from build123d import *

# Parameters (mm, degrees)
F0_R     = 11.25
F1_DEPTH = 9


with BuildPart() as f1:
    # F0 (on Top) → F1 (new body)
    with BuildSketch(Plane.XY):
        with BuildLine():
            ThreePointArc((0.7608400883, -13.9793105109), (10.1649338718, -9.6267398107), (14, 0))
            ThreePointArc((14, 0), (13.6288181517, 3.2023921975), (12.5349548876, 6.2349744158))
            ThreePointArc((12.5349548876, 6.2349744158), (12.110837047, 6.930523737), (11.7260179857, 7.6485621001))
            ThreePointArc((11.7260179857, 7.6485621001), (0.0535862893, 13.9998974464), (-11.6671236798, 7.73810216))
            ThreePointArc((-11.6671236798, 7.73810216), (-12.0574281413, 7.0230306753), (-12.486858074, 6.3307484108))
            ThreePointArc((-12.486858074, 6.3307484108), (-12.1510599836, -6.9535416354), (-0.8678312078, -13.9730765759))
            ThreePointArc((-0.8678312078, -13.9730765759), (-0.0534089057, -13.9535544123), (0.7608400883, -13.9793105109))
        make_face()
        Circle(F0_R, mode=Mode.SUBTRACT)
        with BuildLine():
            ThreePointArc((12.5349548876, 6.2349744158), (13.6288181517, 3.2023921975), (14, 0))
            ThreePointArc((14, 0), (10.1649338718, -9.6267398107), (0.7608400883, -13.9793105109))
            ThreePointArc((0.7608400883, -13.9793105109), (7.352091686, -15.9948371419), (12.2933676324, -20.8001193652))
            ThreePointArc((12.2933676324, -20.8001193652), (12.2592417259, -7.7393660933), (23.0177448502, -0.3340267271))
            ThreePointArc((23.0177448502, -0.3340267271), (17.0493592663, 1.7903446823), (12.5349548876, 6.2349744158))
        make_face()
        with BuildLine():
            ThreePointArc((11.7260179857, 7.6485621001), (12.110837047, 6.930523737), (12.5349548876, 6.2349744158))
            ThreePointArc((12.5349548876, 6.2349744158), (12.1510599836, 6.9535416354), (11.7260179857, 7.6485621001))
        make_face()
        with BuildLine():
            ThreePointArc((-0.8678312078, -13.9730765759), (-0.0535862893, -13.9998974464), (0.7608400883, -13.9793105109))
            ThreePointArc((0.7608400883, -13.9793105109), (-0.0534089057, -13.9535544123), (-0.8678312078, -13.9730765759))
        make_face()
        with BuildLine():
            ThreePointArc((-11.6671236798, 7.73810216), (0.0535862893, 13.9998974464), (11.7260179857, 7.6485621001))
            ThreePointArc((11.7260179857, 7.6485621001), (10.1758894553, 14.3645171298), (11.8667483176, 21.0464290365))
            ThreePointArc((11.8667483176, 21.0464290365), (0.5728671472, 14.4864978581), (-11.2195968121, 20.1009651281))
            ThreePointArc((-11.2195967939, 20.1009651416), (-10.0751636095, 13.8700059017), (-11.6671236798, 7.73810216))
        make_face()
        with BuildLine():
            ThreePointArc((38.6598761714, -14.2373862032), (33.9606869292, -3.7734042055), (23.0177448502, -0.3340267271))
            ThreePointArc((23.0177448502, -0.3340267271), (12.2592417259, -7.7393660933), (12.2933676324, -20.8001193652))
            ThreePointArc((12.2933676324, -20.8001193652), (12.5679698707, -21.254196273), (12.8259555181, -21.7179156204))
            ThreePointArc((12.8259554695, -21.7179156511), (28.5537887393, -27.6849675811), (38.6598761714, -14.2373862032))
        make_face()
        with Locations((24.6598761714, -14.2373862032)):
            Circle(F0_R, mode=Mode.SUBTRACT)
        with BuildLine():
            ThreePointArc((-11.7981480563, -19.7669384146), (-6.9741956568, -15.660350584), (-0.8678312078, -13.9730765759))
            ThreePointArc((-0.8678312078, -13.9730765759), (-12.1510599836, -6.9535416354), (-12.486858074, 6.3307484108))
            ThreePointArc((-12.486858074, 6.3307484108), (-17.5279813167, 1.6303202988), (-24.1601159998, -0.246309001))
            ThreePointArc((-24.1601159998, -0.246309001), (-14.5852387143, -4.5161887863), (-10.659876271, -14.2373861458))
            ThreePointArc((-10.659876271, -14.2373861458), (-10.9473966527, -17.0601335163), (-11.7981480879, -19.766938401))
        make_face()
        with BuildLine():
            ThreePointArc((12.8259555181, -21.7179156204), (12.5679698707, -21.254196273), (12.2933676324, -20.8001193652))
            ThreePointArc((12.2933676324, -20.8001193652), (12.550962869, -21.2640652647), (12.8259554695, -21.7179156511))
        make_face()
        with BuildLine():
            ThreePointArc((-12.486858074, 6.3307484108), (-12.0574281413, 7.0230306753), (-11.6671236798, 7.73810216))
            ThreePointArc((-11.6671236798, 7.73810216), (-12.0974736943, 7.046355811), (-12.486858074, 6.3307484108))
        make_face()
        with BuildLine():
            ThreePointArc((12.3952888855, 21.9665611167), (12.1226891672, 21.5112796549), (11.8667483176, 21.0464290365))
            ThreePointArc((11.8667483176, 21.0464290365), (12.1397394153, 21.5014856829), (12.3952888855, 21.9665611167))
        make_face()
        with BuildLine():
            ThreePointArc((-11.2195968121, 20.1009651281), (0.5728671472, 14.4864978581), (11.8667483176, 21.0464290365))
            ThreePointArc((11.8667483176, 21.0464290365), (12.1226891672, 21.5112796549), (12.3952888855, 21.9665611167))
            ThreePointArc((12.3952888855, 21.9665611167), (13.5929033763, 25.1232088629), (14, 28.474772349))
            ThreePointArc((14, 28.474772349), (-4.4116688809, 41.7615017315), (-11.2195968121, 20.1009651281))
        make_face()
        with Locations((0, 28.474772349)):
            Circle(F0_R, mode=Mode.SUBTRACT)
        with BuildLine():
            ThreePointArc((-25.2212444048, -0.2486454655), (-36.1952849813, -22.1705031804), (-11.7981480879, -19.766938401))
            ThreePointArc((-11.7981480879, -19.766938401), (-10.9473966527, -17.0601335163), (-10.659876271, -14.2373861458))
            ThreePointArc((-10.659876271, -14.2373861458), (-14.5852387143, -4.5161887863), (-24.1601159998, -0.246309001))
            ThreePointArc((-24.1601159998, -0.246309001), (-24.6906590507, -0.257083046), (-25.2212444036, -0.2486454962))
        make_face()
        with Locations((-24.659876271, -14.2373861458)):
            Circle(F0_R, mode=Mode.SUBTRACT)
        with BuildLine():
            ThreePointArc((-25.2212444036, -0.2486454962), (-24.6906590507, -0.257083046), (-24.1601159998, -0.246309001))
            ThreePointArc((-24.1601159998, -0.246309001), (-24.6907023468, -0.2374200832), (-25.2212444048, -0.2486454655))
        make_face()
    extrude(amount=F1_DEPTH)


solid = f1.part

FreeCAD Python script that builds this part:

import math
import FreeCAD as App
import Part
import Sketcher

V = App.Vector
Q = App.Units.Quantity

doc = App.newDocument("Part")
body = doc.addObject("PartDesign::Body", "Body")

# Sketch on XY plane
sketch1 = body.newObject("Sketcher::SketchObject", "Sketch")
sketch1.AttachmentSupport = (doc.getObject("XY_Plane"), [""])
sketch1.MapMode = "FlatFace"
sketch1.addGeometry([
    Part.ArcOfCircle(Part.Circle(V(-0.109511, -28.61081, 0), V(0, 0, 1), 14.657363), math.radians(32.2006), math.radians(86.595785)),  # 0
    Part.ArcOfCircle(Part.Circle(V(24.659876, -14.237386, 0), V(0, 0, 1), 14), math.radians(-152.045733), math.radians(-147.701953)),  # 1
    Part.ArcOfCircle(Part.Circle(V(24.659876, -14.237386, 0), V(0, 0, 1), 14), math.radians(-147.701953), math.radians(0)),  # 2
    Part.ArcOfCircle(Part.Circle(V(24.659876, -14.237386, 0), V(0, 0, 1), 14), math.radians(0), math.radians(96.73602)),  # 3
    Part.ArcOfCircle(Part.Circle(V(24.832444, 14.210566, 0), V(0, 0, 1), 14.657363), math.radians(-147.034396), math.radians(-97.111927)),  # 4
    Part.ArcOfCircle(Part.Circle(V(0, 0, 0), V(0, 0, 1), 14), math.radians(26.446074), math.radians(33.115315)),  # 5
    Part.ArcOfCircle(Part.Circle(V(24.832444, 14.210566, 0), V(0, 0, 1), 14.657363), math.radians(152.200597), math.radians(206.595785)),  # 6
    Part.ArcOfCircle(Part.Circle(V(0, 28.474772, 0), V(0, 0, 1), 14), math.radians(-32.04573), math.radians(-27.701953)),  # 7
    Part.ArcOfCircle(Part.Circle(V(0, 28.474772, 0), V(0, 0, 1), 14), math.radians(-27.701953), math.radians(0)),  # 8
    Part.ArcOfCircle(Part.Circle(V(0, 28.474772, 0), V(0, 0, 1), 14), math.radians(0), math.radians(216.736021)),  # 9
    Part.ArcOfCircle(Part.Circle(V(-24.722933, 14.400245, 0), V(0, 0, 1), 14.657363), math.radians(-27.034396), math.radians(22.888073)),  # 10
    Part.ArcOfCircle(Part.Circle(V(0, 0, 0), V(0, 0, 1), 14), math.radians(146.446074), math.radians(153.115315)),  # 11
    Part.ArcOfCircle(Part.Circle(V(-24.722933, 14.400245, 0), V(0, 0, 1), 14.657363), math.radians(-87.799402), math.radians(-33.404215)),  # 12
    Part.ArcOfCircle(Part.Circle(V(-24.659876, -14.237386, 0), V(0, 0, 1), 14), math.radians(87.954269), math.radians(92.298046)),  # 13
    Part.ArcOfCircle(Part.Circle(V(-24.659876, -14.237386, 0), V(0, 0, 1), 14), math.radians(92.298046), math.radians(336.736021)),  # 14
    Part.ArcOfCircle(Part.Circle(V(-0.109511, -28.61081, 0), V(0, 0, 1), 14.657363), math.radians(92.965604), math.radians(142.888073)),  # 15
    Part.ArcOfCircle(Part.Circle(V(0, 0, 0), V(0, 0, 1), 14), math.radians(-93.553926), math.radians(-86.884685)),  # 16
    Part.Circle(V(-24.659876, -14.237386, 0), V(0, 0, 1), 11.25),  # 17
    Part.Circle(V(24.659876, -14.237386, 0), V(0, 0, 1), 11.25),  # 18
    Part.Circle(V(0, 0, 0), V(0, 0, 1), 11.25),  # 19
    Part.Circle(V(0, 28.474772, 0), V(0, 0, 1), 11.25),  # 20
], False)
sketch1.addConstraint([
    Sketcher.Constraint("Coincident", 0, 1, 1, 1),
    Sketcher.Constraint("Tangent", 1, 2, 2, 1),
    Sketcher.Constraint("Tangent", 2, 2, 3, 1),
    Sketcher.Constraint("Coincident", 3, 2, 4, 2),
    Sketcher.Constraint("Coincident", 4, 1, 5, 1),
    Sketcher.Constraint("Coincident", 5, 2, 6, 2),
    Sketcher.Constraint("Coincident", 6, 1, 7, 1),
    Sketcher.Constraint("Tangent", 7, 2, 8, 1),
    Sketcher.Constraint("Tangent", 8, 2, 9, 1),
    Sketcher.Constraint("Coincident", 9, 2, 10, 2),
    Sketcher.Constraint("Coincident", 10, 1, 11, 1),
    Sketcher.Constraint("Coincident", 11, 2, 12, 2),
    Sketcher.Constraint("Coincident", 12, 1, 13, 1),
    Sketcher.Constraint("Tangent", 13, 2, 14, 1),
    Sketcher.Constraint("Coincident", 14, 2, 15, 2),
    Sketcher.Constraint("Coincident", 15, 1, 16, 1),
    Sketcher.Constraint("Coincident", 16, 2, 0, 2),
    Sketcher.Constraint("Coincident", 5, 3, -1, 1),
    Sketcher.Constraint("Coincident", 11, 3, -1, 1),
    Sketcher.Constraint("Coincident", 16, 3, -1, 1),
    Sketcher.Constraint("Coincident", 19, 3, -1, 1),
    Sketcher.Constraint("Coincident", 3, 3, 1, 3),
    Sketcher.Constraint("Coincident", 6, 3, 4, 3),
    Sketcher.Constraint("Coincident", 9, 3, 7, 3),
    Sketcher.Constraint("Coincident", 12, 3, 10, 3),
    Sketcher.Constraint("Coincident", 15, 3, 0, 3),
    Sketcher.Constraint("Coincident", 17, 3, 13, 3),
    Sketcher.Constraint("Coincident", 18, 3, 1, 3),
    Sketcher.Constraint("Coincident", 20, 3, 7, 3),
    Sketcher.Constraint("Equal", 0, 4),
    Sketcher.Constraint("Equal", 3, 5),
    Sketcher.Constraint("Equal", 4, 6),
    Sketcher.Constraint("Equal", 5, 7),
    Sketcher.Constraint("Equal", 6, 10),
    Sketcher.Constraint("Equal", 9, 11),
    Sketcher.Constraint("Equal", 10, 12),
    Sketcher.Constraint("Equal", 11, 13),
    Sketcher.Constraint("Equal", 13, 14),
    Sketcher.Constraint("Equal", 12, 15),
    Sketcher.Constraint("Equal", 14, 16),
    Sketcher.Constraint("Equal", 17, 18),
    Sketcher.Constraint("Equal", 18, 19),
    Sketcher.Constraint("Equal", 19, 20),
    Sketcher.Constraint("Symmetric", 1, 3, 13, 3, -2),
    Sketcher.Constraint("PointOnObject", 7, 3, -2),
    Sketcher.Constraint("Horizontal", 18, 3, 2, 2),
    Sketcher.Constraint("Horizontal", 20, 3, 8, 2),
    Sketcher.Constraint("Radius", 1, Q("14 mm")),
    Sketcher.Constraint("Diameter", 17, Q("22.5 mm")),
    Sketcher.Constraint("Radius", 0, Q("14.657363 mm")),
    Sketcher.Constraint("DistanceY", 3, 2, 4, 1, Q("6.569001 mm")),
    Sketcher.Constraint("DistanceX", 3, 2, 6, 3, Q("1.814699 mm")),
    Sketcher.Constraint("DistanceX", 0, 3, -1, 1, Q("0.109511 mm")),
    Sketcher.Constraint("DistanceY", 0, 3, -1, 1, Q("28.61081 mm")),
    Sketcher.Constraint("DistanceY", 0, 1, -1, 1, Q("20.800119 mm")),
    Sketcher.Constraint("DistanceX", -1, 1, 6, 1, Q("11.866748 mm")),
    Sketcher.Constraint("DistanceY", -1, 1, 6, 1, Q("21.046429 mm")),
    Sketcher.Constraint("DistanceX", -1, 1, 7, 2, Q("12.395289 mm")),
    Sketcher.Constraint("DistanceX", 11, 2, -1, 1, Q("12.486858 mm")),
    Sketcher.Constraint("DistanceY", 12, 1, -1, 1, Q("0.246309 mm")),
    Sketcher.Constraint("DistanceX", 1, 2, 2, 3, Q("11.833921 mm")),
    Sketcher.Constraint("DistanceX", 13, 2, 12, 1, Q("1.061128 mm")),
])
pad1 = body.newObject("PartDesign::Pad", "Pad")
pad1.Profile = sketch1
pad1.Length = 9

doc.recompute()
